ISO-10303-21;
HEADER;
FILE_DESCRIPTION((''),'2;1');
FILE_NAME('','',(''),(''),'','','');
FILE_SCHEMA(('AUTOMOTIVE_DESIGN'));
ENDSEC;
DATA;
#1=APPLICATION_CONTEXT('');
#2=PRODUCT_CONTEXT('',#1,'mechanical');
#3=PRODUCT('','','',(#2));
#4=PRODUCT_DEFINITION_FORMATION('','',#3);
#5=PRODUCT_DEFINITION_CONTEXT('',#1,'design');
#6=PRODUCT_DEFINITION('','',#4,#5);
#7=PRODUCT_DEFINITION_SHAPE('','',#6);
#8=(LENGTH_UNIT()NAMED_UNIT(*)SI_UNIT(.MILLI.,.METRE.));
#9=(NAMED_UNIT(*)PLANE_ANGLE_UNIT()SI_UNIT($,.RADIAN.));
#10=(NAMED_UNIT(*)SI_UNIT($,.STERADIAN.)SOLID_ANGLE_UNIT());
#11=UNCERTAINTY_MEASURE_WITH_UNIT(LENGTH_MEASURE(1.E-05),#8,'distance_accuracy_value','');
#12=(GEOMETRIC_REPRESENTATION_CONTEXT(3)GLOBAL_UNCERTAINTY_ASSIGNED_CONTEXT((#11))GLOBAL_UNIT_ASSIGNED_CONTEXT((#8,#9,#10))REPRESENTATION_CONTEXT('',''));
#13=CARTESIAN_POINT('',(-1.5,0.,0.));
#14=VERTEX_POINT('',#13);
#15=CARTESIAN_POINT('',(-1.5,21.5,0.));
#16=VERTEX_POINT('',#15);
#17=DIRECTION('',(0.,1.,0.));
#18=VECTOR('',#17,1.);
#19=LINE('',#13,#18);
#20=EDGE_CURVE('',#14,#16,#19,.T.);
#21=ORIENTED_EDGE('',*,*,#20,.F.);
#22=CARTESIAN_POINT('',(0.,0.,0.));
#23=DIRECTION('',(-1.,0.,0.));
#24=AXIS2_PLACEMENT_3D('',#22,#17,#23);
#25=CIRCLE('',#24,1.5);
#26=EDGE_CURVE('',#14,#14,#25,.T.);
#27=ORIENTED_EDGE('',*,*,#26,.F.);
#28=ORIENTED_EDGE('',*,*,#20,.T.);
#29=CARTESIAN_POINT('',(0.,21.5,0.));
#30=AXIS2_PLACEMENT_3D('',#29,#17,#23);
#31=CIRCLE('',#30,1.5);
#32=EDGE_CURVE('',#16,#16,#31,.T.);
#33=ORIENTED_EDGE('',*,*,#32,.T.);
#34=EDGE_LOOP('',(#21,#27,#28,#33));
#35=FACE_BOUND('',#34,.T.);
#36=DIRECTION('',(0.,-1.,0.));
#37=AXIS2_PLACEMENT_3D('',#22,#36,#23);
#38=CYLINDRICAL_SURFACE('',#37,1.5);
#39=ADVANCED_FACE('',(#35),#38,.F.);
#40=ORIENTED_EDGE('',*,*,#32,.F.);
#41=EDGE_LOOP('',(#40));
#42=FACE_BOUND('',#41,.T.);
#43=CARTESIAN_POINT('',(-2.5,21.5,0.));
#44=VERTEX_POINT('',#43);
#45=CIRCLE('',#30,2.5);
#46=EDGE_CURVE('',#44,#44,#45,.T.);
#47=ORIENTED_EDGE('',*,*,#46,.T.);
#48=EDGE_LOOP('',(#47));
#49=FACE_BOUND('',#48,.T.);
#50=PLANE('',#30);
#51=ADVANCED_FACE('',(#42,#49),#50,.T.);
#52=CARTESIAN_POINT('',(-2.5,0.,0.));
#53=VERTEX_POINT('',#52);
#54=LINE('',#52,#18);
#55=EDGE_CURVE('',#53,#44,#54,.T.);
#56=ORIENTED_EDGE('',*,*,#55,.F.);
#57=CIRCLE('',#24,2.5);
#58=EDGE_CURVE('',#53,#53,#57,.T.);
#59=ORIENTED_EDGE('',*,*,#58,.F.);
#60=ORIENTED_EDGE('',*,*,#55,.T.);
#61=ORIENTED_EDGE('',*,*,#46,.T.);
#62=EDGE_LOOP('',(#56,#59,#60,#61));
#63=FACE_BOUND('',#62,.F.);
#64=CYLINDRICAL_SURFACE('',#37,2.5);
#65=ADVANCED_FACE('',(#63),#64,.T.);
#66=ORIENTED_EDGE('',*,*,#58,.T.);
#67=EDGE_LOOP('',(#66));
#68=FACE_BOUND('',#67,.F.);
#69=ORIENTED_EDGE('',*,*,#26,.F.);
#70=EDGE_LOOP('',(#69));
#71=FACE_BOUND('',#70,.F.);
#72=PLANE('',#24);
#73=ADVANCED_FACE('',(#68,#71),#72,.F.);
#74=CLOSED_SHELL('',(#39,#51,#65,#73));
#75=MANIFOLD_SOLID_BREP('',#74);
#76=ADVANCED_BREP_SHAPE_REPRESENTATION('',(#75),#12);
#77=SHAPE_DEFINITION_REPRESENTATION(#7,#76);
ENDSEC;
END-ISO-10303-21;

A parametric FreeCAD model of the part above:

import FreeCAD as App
import Part
import Sketcher
from FreeCAD import Vector
Q = App.Units.Quantity

doc = App.newDocument("Part")
params = doc.addObject("Spreadsheet::Sheet", "Params")
for row, (alias, value) in enumerate([
    ("sketch1_diameter", "5 mm"),
    ("sketch1_diameter2", "3 mm"),
    ("pad1_length", "21.5 mm"),
], start=1):
    params.set(f"A{row}", alias)
    params.set(f"B{row}", "=" + value)
    params.setAlias(f"B{row}", alias)

body = doc.addObject("PartDesign::Body", "Body")

# Sketch on XZ plane
sketch1 = body.newObject("Sketcher::SketchObject", "Sketch")
sketch1.AttachmentSupport = (doc.getObject("XZ_Plane"), [""])
sketch1.MapMode = "FlatFace"
sketch1.addGeometry([
    Part.Circle(Vector(0, 0, 0), Vector(0, 0, 1), 2.5),
    Part.Circle(Vector(0, 0, 0), Vector(0, 0, 1), 1.5),
], False)
sketch1.addConstraint([
    Sketcher.Constraint("Coincident", 0, 3, -1, 1),
    Sketcher.Constraint("Coincident", 1, 3, -1, 1),
    Sketcher.Constraint("Diameter", 0, Q("5 mm")),
    Sketcher.Constraint("Diameter", 1, Q("3 mm")),
])
sketch1.setExpression("Constraints[2]", "Params.sketch1_diameter")
sketch1.setExpression("Constraints[3]", "Params.sketch1_diameter2")
pad1 = body.newObject("PartDesign::Pad", "Pad")
pad1.Profile = sketch1
pad1.setExpression("Length", "Params.pad1_length")
pad1.Reversed = True

doc.recompute()
